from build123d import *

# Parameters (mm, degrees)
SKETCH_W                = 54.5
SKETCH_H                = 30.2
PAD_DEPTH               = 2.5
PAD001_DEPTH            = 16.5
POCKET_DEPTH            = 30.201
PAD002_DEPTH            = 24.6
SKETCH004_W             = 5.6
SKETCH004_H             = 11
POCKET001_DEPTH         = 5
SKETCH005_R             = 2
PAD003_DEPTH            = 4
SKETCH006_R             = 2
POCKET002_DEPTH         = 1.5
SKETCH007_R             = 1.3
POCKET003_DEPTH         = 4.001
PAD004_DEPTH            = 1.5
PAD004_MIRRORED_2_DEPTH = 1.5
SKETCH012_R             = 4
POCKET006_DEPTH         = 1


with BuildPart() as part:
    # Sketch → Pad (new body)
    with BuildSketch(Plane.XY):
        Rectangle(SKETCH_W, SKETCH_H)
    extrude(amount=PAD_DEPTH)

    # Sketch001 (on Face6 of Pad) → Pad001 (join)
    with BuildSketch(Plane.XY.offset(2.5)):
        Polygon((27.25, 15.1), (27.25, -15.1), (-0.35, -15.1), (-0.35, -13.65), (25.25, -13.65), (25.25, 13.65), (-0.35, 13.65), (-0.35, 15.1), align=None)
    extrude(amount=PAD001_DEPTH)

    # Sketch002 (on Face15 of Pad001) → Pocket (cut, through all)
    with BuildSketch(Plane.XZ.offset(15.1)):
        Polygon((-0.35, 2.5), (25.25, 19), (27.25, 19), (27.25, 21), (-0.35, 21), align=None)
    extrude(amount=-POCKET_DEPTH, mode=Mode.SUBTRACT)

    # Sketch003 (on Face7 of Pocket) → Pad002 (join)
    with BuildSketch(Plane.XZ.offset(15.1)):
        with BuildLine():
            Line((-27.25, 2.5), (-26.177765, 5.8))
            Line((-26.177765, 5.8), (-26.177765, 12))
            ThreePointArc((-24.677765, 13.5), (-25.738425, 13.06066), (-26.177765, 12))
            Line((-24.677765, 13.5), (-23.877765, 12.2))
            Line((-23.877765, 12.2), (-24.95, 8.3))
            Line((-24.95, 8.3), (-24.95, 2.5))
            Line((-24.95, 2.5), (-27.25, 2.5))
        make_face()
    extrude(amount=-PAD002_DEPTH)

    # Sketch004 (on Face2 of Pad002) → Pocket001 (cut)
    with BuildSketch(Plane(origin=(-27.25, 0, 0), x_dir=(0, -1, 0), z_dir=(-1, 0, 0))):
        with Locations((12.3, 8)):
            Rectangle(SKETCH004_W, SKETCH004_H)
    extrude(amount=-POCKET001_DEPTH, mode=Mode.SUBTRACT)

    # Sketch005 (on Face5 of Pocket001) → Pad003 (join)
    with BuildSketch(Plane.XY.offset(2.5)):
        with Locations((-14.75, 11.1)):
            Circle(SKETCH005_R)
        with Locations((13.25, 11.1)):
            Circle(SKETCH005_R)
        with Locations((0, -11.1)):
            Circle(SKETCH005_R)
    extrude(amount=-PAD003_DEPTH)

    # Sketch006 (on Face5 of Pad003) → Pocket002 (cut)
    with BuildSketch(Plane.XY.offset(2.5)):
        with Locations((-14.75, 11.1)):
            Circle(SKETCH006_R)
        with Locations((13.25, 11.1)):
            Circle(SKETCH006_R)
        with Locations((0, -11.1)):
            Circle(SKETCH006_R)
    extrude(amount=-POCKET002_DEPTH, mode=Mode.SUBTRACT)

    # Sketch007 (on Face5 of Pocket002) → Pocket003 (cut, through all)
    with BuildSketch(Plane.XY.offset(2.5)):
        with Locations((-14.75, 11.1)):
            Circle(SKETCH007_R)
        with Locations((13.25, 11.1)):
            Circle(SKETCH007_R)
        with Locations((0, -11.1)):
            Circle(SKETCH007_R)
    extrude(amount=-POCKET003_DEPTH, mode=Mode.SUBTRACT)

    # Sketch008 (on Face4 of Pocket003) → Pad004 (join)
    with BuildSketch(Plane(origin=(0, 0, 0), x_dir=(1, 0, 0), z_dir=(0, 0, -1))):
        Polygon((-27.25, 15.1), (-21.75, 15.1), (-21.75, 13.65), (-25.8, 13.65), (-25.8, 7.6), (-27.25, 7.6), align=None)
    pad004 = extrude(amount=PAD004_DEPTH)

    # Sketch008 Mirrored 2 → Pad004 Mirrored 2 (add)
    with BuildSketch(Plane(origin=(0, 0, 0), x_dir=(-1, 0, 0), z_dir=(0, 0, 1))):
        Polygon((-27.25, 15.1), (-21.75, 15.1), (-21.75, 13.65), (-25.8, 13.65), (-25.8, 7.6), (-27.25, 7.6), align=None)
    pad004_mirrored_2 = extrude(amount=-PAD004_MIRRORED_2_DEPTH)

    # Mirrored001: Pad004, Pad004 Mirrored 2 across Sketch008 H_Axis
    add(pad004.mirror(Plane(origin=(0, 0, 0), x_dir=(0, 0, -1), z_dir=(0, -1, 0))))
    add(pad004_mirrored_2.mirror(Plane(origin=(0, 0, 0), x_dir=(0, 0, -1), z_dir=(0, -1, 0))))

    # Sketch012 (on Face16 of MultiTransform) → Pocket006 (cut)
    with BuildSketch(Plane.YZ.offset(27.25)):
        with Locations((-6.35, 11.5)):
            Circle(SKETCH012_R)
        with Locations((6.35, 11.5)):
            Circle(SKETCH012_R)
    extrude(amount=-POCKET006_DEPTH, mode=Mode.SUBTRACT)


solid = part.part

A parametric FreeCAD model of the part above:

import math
import FreeCAD as App
import Part
import Sketcher
Q = App.Units.Quantity


def add_polygon(sketch, points):
    """Adds a closed chain of lines whose ends are joined by coincident constraints."""
    first, n = sketch.GeometryCount, len(points)
    for a, b in zip(points, points[1:] + points[:1]):
        sketch.addGeometry(Part.LineSegment(App.Vector(*a, 0), App.Vector(*b, 0)), False)
    for i in range(n):
        sketch.addConstraint(Sketcher.Constraint("Coincident", first + i, 2, first + (i + 1) % n, 1))

doc = App.newDocument("Part")
body = doc.addObject("PartDesign::Body", "Body")

# Sketch on XY plane
sketch1 = body.newObject("Sketcher::SketchObject", "Sketch")
sketch1.AttachmentSupport = (doc.getObject("XY_Plane"), [""])
sketch1.MapMode = "FlatFace"
add_polygon(sketch1, [(-27, 15), (-27, -15), (27, -15), (27, 15)])  # lines 0-3
sketch1.addConstraint(Sketcher.Constraint("Vertical", 0))
sketch1.addConstraint(Sketcher.Constraint("Horizontal", 1))
sketch1.addConstraint(Sketcher.Constraint("Vertical", 2))
sketch1.addConstraint(Sketcher.Constraint("Horizontal", 3))
sketch1.addConstraint(Sketcher.Constraint("Symmetric", 0, 2, 2, 2, -1, 1))
sketch1.addConstraint(Sketcher.Constraint("DistanceX", 1, 1, 1, 2, 54.5))
sketch1.addConstraint(Sketcher.Constraint("DistanceY", 0, 2, 0, 1, 30.2))
pad1 = body.newObject("PartDesign::Pad", "Pad")
pad1.Profile = sketch1
pad1.Length = 2.5

# Sketch on XY plane
sketch2 = body.newObject("Sketcher::SketchObject", "Sketch001")
sketch2.AttachmentSupport = (doc.getObject("XY_Plane"), [""])
sketch2.MapMode = "FlatFace"
sketch2.AttachmentOffset = App.Placement(App.Vector(0, 0, 2.5), App.Rotation())
add_polygon(sketch2, [(27.2, -15.1), (27.2, 15.1), (-0.3, 15.1), (-0.3, 13.7), (25.2, 13.7), (25.2, -13.7), (-0.3, -13.7), (-0.3, -15.1)])  # lines 0-7
sketch2.addConstraint(Sketcher.Constraint("Vertical", 0))
sketch2.addConstraint(Sketcher.Constraint("Horizontal", 1))
sketch2.addConstraint(Sketcher.Constraint("Vertical", 2))
sketch2.addConstraint(Sketcher.Constraint("Horizontal", 3))
sketch2.addConstraint(Sketcher.Constraint("Vertical", 4))
sketch2.addConstraint(Sketcher.Constraint("Horizontal", 5))
sketch2.addConstraint(Sketcher.Constraint("Vertical", 6))
sketch2.addConstraint(Sketcher.Constraint("Horizontal", 7))
sketch2.addConstraint(Sketcher.Constraint("Symmetric", 2, 2, 5, 2, -1))
sketch2.addConstraint(Sketcher.Constraint("Equal", 2, 6))
sketch2.addConstraint(Sketcher.Constraint("DistanceX", 1, 2, 1, 1, 27.6))
sketch2.addConstraint(Sketcher.Constraint("DistanceX", 3, 1, 3, 2, 25.6))
sketch2.addConstraint(Sketcher.Constraint("DistanceY", 0, 1, 0, 2, 30.2))
sketch2.addConstraint(Sketcher.Constraint("DistanceY", 4, 2, 4, 1, 27.3))
sketch2.addConstraint(Sketcher.Constraint("DistanceX", -1, 1, 0, 2, 27.25))
pad2 = body.newObject("PartDesign::Pad", "Pad001")
pad2.Profile = sketch2
pad2.Length = 16.5

# Sketch on XZ plane
sketch3 = body.newObject("Sketcher::SketchObject", "Sketch002")
sketch3.AttachmentSupport = (doc.getObject("XZ_Plane"), [""])
sketch3.MapMode = "FlatFace"
sketch3.AttachmentOffset = App.Placement(App.Vector(0, 0, 15.1), App.Rotation())
add_polygon(sketch3, [(-0.3, 2.5), (25.2, 19), (27.2, 19), (27.2, 21), (-0.3, 21)])  # lines 0-4
sketch3.addConstraint(Sketcher.Constraint("Horizontal", 1))
sketch3.addConstraint(Sketcher.Constraint("Vertical", 2))
sketch3.addConstraint(Sketcher.Constraint("Horizontal", 3))
sketch3.addConstraint(Sketcher.Constraint("Vertical", 4))
sketch3.addConstraint(Sketcher.Constraint("Equal", 1, 2))
sketch3.addConstraint(Sketcher.Constraint("DistanceX", 1, 1, 1, 2, 2.0))
sketch3.addConstraint(Sketcher.Constraint("DistanceX", 3, 2, 3, 1, 27.6))
sketch3.addConstraint(Sketcher.Constraint("DistanceY", 4, 2, 4, 1, 18.5))
sketch3.addConstraint(Sketcher.Constraint("DistanceY", -1, 1, 0, 2, 19.0))
sketch3.addConstraint(Sketcher.Constraint("DistanceX", -1, 1, 0, 2, 25.25))
pocket1 = body.newObject("PartDesign::Pocket", "Pocket")
pocket1.Profile = sketch3
pocket1.Type = "ThroughAll"

# Sketch on XZ plane
sketch4 = body.newObject("Sketcher::SketchObject", "Sketch003")
sketch4.AttachmentSupport = (doc.getObject("XZ_Plane"), [""])
sketch4.MapMode = "FlatFace"
sketch4.AttachmentOffset = App.Placement(App.Vector(0, 0, 15.1), App.Rotation())
sketch4.addGeometry(Part.LineSegment(App.Vector(-26.2, 5.8, 0), App.Vector(-27.2, 2.5, 0)), False)
sketch4.addGeometry(Part.LineSegment(App.Vector(-27.2, 2.5, 0), App.Vector(-24.9, 2.5, 0)), False)
sketch4.addGeometry(Part.LineSegment(App.Vector(-24.9, 2.5, 0), App.Vector(-24.9, 8.3, 0)), False)
sketch4.addGeometry(Part.LineSegment(App.Vector(-24.9, 8.3, 0), App.Vector(-23.9, 12.2, 0)), False)
sketch4.addGeometry(Part.LineSegment(App.Vector(-23.9, 12.2, 0), App.Vector(-24.7, 13.5, 0)), False)
sketch4.addGeometry(Part.ArcOfCircle(Part.Circle(App.Vector(-24.7, 12, 0), App.Vector(0, 0, 1), 1.5), math.radians(90), math.radians(180)), False)
sketch4.addGeometry(Part.LineSegment(App.Vector(-26.2, 12, 0), App.Vector(-26.2, 5.8, 0)), False)
sketch4.addConstraint(Sketcher.Constraint("Coincident", 0, 2, 1, 1))
sketch4.addConstraint(Sketcher.Constraint("Coincident", 1, 2, 2, 1))
sketch4.addConstraint(Sketcher.Constraint("Coincident", 2, 2, 3, 1))
sketch4.addConstraint(Sketcher.Constraint("Coincident", 3, 2, 4, 1))
sketch4.addConstraint(Sketcher.Constraint("Coincident", 4, 2, 5, 1))
sketch4.addConstraint(Sketcher.Constraint("Tangent", 5, 2, 6, 1))
sketch4.addConstraint(Sketcher.Constraint("Coincident", 6, 2, 0, 1))
sketch4.addConstraint(Sketcher.Constraint("Horizontal", 1))
sketch4.addConstraint(Sketcher.Constraint("Vertical", 2))
sketch4.addConstraint(Sketcher.Constraint("Vertical", 6))
sketch4.addConstraint(Sketcher.Constraint("Vertical", 5, 3, 4, 2))
sketch4.addConstraint(Sketcher.Constraint("Radius", 5, 1.500001))
sketch4.addConstraint(Sketcher.Constraint("Angle", 0, Q("-108 deg")))
sketch4.addConstraint(Sketcher.Constraint("DistanceX", 1, 1, 1, 2, 2.3))
sketch4.addConstraint(Sketcher.Constraint("DistanceY", 2, 1, 2, 2, 5.8))
sketch4.addConstraint(Sketcher.Constraint("DistanceY", 6, 2, 6, 1, 6.2))
sketch4.addConstraint(Sketcher.Constraint("DistanceY", -1, 1, 5, 3, 11.999999))
sketch4.addConstraint(Sketcher.Constraint("DistanceY", 1, 2, 4, 2, 11.0))
sketch4.addConstraint(Sketcher.Constraint("DistanceY", -1, 1, 3, 2, 12.2))
sketch4.addConstraint(Sketcher.Constraint("DistanceX", 5, 3, 3, 2, 0.799999))
sketch4.addConstraint(Sketcher.Constraint("DistanceX", 0, 2, -1, 1, 27.25))
pad3 = body.newObject("PartDesign::Pad", "Pad002")
pad3.Profile = sketch4
pad3.Length = 24.6
pad3.Reversed = True

# Sketch on YZ plane
sketch5 = body.newObject("Sketcher::SketchObject", "Sketch004")
sketch5.AttachmentSupport = (doc.getObject("YZ_Plane"), [""])
sketch5.MapMode = "FlatFace"
sketch5.AttachmentOffset = App.Placement(App.Vector(0, 0, -27.25), App.Rotation())
add_polygon(sketch5, [(-10, 14), (-10, 2), (-15, 2), (-15, 14)])  # lines 0-3
sketch5.addConstraint(Sketcher.Constraint("Vertical", 0))
sketch5.addConstraint(Sketcher.Constraint("Horizontal", 1))
sketch5.addConstraint(Sketcher.Constraint("Vertical", 2))
sketch5.addConstraint(Sketcher.Constraint("Horizontal", 3))
sketch5.addConstraint(Sketcher.Constraint("DistanceY", 0, 2, 0, 1, 11.0))
sketch5.addConstraint(Sketcher.Constraint("DistanceX", 1, 2, 1, 1, 5.6))
sketch5.addConstraint(Sketcher.Constraint("DistanceX", 0, 2, -1, 1, 9.5))
sketch5.addConstraint(Sketcher.Constraint("DistanceY", -1, 1, 0, 2, 2.5))
pocket2 = body.newObject("PartDesign::Pocket", "Pocket001")
pocket2.Profile = sketch5
pocket2.Length = 5
pocket2.Reversed = True

# Sketch on XY plane
sketch6 = body.newObject("Sketcher::SketchObject", "Sketch005")
sketch6.AttachmentSupport = (doc.getObject("XY_Plane"), [""])
sketch6.MapMode = "FlatFace"
sketch6.AttachmentOffset = App.Placement(App.Vector(0, 0, 2.5), App.Rotation())
sketch6.addGeometry(Part.Circle(App.Vector(-14.8, 11.1, 0), App.Vector(0, 0, 1), 2), False)
sketch6.addGeometry(Part.Circle(App.Vector(13.2, 11.1, 0), App.Vector(0, 0, 1), 2), False)
sketch6.addGeometry(Part.Circle(App.Vector(0, -11.1, 0), App.Vector(0, 0, 1), 2), False)
sketch6.addConstraint(Sketcher.Constraint("Equal", 0, 1))
sketch6.addConstraint(Sketcher.Constraint("Equal", 1, 2))
sketch6.addConstraint(Sketcher.Constraint("PointOnObject", 2, 3, -2))
sketch6.addConstraint(Sketcher.Constraint("Horizontal", 0, 3, 1, 3))
sketch6.addConstraint(Sketcher.Constraint("Diameter", 0, 4.0))
sketch6.addConstraint(Sketcher.Constraint("DistanceX", 0, 3, 1, 3, 28.0))
sketch6.addConstraint(Sketcher.Constraint("DistanceY", -1, 1, 0, 3, 11.1))
sketch6.addConstraint(Sketcher.Constraint("DistanceY", 2, 3, -1, 1, 11.1))
sketch6.addConstraint(Sketcher.Constraint("DistanceX", 0, 3, -1, 1, 14.75))
pad4 = body.newObject("PartDesign::Pad", "Pad003")
pad4.Profile = sketch6
pad4.Length = 4
pad4.Reversed = True

# Sketch on XY plane
sketch7 = body.newObject("Sketcher::SketchObject", "Sketch006")
sketch7.AttachmentSupport = (doc.getObject("XY_Plane"), [""])
sketch7.MapMode = "FlatFace"
sketch7.AttachmentOffset = App.Placement(App.Vector(0, 0, 2.5), App.Rotation())
sketch7.addGeometry(Part.Circle(App.Vector(-14.8, 11.1, 0), App.Vector(0, 0, 1), 2), False)
sketch7.addGeometry(Part.Circle(App.Vector(13.2, 11.1, 0), App.Vector(0, 0, 1), 2), False)
sketch7.addGeometry(Part.Circle(App.Vector(0, -11.1, 0), App.Vector(0, 0, 1), 2), False)
sketch7.addConstraint(Sketcher.Constraint("Equal", 0, 1))
sketch7.addConstraint(Sketcher.Constraint("Equal", 1, 2))
sketch7.addConstraint(Sketcher.Constraint("PointOnObject", 2, 3, -2))
sketch7.addConstraint(Sketcher.Constraint("Horizontal", 0, 3, 1, 3))
sketch7.addConstraint(Sketcher.Constraint("Diameter", 0, 4.0))
sketch7.addConstraint(Sketcher.Constraint("DistanceX", 0, 3, 1, 3, 28.0))
sketch7.addConstraint(Sketcher.Constraint("DistanceY", -1, 1, 0, 3, 11.1))
sketch7.addConstraint(Sketcher.Constraint("DistanceY", 2, 3, -1, 1, 11.1))
sketch7.addConstraint(Sketcher.Constraint("DistanceX", 0, 3, -1, 1, 14.75))
pocket3 = body.newObject("PartDesign::Pocket", "Pocket002")
pocket3.Profile = sketch7
pocket3.Length = 1.5

# Sketch on XY plane
sketch8 = body.newObject("Sketcher::SketchObject", "Sketch007")
sketch8.AttachmentSupport = (doc.getObject("XY_Plane"), [""])
sketch8.MapMode = "FlatFace"
sketch8.AttachmentOffset = App.Placement(App.Vector(0, 0, 2.5), App.Rotation())
sketch8.addGeometry(Part.Circle(App.Vector(-14.8, 11.1, 0), App.Vector(0, 0, 1), 1.3), False)
sketch8.addGeometry(Part.Circle(App.Vector(13.2, 11.1, 0), App.Vector(0, 0, 1), 1.3), False)
sketch8.addGeometry(Part.Circle(App.Vector(0, -11.1, 0), App.Vector(0, 0, 1), 1.3), False)
sketch8.addConstraint(Sketcher.Constraint("Equal", 0, 1))
sketch8.addConstraint(Sketcher.Constraint("Equal", 1, 2))
sketch8.addConstraint(Sketcher.Constraint("PointOnObject", 2, 3, -2))
sketch8.addConstraint(Sketcher.Constraint("Horizontal", 0, 3, 1, 3))
sketch8.addConstraint(Sketcher.Constraint("Diameter", 0, 2.6))
sketch8.addConstraint(Sketcher.Constraint("DistanceX", 0, 3, 1, 3, 28.0))
sketch8.addConstraint(Sketcher.Constraint("DistanceY", -1, 1, 0, 3, 11.1))
sketch8.addConstraint(Sketcher.Constraint("DistanceY", 2, 3, -1, 1, 11.1))
sketch8.addConstraint(Sketcher.Constraint("DistanceX", 0, 3, -1, 1, 14.75))
pocket4 = body.newObject("PartDesign::Pocket", "Pocket003")
pocket4.Profile = sketch8
pocket4.Type = "ThroughAll"

# Sketch on XY plane
sketch9 = body.newObject("Sketcher::SketchObject", "Sketch008")
sketch9.AttachmentSupport = (doc.getObject("XY_Plane"), [""])
sketch9.MapMode = "FlatFace"
add_polygon(sketch9, [(-21.8, -15.1), (-27.2, -15.1), (-27.2, -7.6), (-25.8, -7.6), (-25.8, -13.7), (-21.8, -13.7)])  # lines 0-5
sketch9.addConstraint(Sketcher.Constraint("Horizontal", 0))
sketch9.addConstraint(Sketcher.Constraint("Vertical", 1))
sketch9.addConstraint(Sketcher.Constraint("Horizontal", 2))
sketch9.addConstraint(Sketcher.Constraint("Vertical", 3))
sketch9.addConstraint(Sketcher.Constraint("Horizontal", 4))
sketch9.addConstraint(Sketcher.Constraint("Vertical", 5))
sketch9.addConstraint(Sketcher.Constraint("Equal", 2, 5))
sketch9.addConstraint(Sketcher.Constraint("DistanceX", 0, 2, 0, 1, 5.5))
sketch9.addConstraint(Sketcher.Constraint("DistanceY", 1, 1, 1, 2, 7.5))
sketch9.addConstraint(Sketcher.Constraint("DistanceX", 2, 1, 2, 2, 1.45))
sketch9.addConstraint(Sketcher.Constraint("DistanceY", 0, 2, -1, 1, 15.1))
sketch9.addConstraint(Sketcher.Constraint("DistanceX", 2, 2, -1, 1, 25.8))
pad5 = body.newObject("PartDesign::Pad", "Pad004")
pad5.Profile = sketch9
pad5.Length = 1.5
pad5.Reversed = True

# Sketch on XY plane
sketch10 = body.newObject("Sketcher::SketchObject", "Sketch009")
sketch10.AttachmentSupport = (doc.getObject("XY_Plane"), [""])
sketch10.MapMode = "FlatFace"
add_polygon(sketch10, [(21.8, -15.1), (27.2, -15.1), (27.2, -7.6), (25.8, -7.6), (25.8, -13.7), (21.8, -13.7)])  # lines 0-5
sketch10.addConstraint(Sketcher.Constraint("Horizontal", 0))
sketch10.addConstraint(Sketcher.Constraint("Vertical", 1))
sketch10.addConstraint(Sketcher.Constraint("Horizontal", 2))
sketch10.addConstraint(Sketcher.Constraint("Vertical", 3))
sketch10.addConstraint(Sketcher.Constraint("Horizontal", 4))
sketch10.addConstraint(Sketcher.Constraint("Vertical", 5))
sketch10.addConstraint(Sketcher.Constraint("Equal", 2, 5))
sketch10.addConstraint(Sketcher.Constraint("DistanceX", 0, 1, 0, 2, 5.5))
sketch10.addConstraint(Sketcher.Constraint("DistanceY", 1, 1, 1, 2, 7.5))
sketch10.addConstraint(Sketcher.Constraint("DistanceX", 2, 2, 2, 1, 1.45))
sketch10.addConstraint(Sketcher.Constraint("DistanceY", 0, 2, -1, 1, 15.1))
sketch10.addConstraint(Sketcher.Constraint("DistanceX", -1, 1, 2, 2, 25.8))
pad6 = body.newObject("PartDesign::Pad", "Pad005")
pad6.Profile = sketch10
pad6.Length = 1.5
pad6.Reversed = True
doc.recompute()

mirrored = body.newObject("PartDesign::Mirrored", "Mirrored")
mirrored.Originals = [pad5, pad6]
mirrored.MirrorPlane = (doc.getObject("XZ_Plane"), [""])
body.Tip = mirrored

# Sketch on YZ plane
sketch11 = body.newObject("Sketcher::SketchObject", "Sketch010")
sketch11.AttachmentSupport = (doc.getObject("YZ_Plane"), [""])
sketch11.MapMode = "FlatFace"
sketch11.AttachmentOffset = App.Placement(App.Vector(0, 0, 27.25), App.Rotation())
sketch11.addGeometry(Part.Circle(App.Vector(-6.3, 11.5, 0), App.Vector(0, 0, 1), 4), False)
sketch11.addGeometry(Part.Circle(App.Vector(6.3, 11.5, 0), App.Vector(0, 0, 1), 4), False)
sketch11.addConstraint(Sketcher.Constraint("Equal", 0, 1))
sketch11.addConstraint(Sketcher.Constraint("Symmetric", 0, 3, 1, 3, -2))
sketch11.addConstraint(Sketcher.Constraint("Diameter", 0, 8.0))
sketch11.addConstraint(Sketcher.Constraint("DistanceY", -1, 1, 0, 3, 11.5))
sketch11.addConstraint(Sketcher.Constraint("DistanceX", 0, 3, 1, 3, 12.7))
pocket5 = body.newObject("PartDesign::Pocket", "Pocket004")
pocket5.Profile = sketch11
pocket5.Length = 1

doc.recompute()
